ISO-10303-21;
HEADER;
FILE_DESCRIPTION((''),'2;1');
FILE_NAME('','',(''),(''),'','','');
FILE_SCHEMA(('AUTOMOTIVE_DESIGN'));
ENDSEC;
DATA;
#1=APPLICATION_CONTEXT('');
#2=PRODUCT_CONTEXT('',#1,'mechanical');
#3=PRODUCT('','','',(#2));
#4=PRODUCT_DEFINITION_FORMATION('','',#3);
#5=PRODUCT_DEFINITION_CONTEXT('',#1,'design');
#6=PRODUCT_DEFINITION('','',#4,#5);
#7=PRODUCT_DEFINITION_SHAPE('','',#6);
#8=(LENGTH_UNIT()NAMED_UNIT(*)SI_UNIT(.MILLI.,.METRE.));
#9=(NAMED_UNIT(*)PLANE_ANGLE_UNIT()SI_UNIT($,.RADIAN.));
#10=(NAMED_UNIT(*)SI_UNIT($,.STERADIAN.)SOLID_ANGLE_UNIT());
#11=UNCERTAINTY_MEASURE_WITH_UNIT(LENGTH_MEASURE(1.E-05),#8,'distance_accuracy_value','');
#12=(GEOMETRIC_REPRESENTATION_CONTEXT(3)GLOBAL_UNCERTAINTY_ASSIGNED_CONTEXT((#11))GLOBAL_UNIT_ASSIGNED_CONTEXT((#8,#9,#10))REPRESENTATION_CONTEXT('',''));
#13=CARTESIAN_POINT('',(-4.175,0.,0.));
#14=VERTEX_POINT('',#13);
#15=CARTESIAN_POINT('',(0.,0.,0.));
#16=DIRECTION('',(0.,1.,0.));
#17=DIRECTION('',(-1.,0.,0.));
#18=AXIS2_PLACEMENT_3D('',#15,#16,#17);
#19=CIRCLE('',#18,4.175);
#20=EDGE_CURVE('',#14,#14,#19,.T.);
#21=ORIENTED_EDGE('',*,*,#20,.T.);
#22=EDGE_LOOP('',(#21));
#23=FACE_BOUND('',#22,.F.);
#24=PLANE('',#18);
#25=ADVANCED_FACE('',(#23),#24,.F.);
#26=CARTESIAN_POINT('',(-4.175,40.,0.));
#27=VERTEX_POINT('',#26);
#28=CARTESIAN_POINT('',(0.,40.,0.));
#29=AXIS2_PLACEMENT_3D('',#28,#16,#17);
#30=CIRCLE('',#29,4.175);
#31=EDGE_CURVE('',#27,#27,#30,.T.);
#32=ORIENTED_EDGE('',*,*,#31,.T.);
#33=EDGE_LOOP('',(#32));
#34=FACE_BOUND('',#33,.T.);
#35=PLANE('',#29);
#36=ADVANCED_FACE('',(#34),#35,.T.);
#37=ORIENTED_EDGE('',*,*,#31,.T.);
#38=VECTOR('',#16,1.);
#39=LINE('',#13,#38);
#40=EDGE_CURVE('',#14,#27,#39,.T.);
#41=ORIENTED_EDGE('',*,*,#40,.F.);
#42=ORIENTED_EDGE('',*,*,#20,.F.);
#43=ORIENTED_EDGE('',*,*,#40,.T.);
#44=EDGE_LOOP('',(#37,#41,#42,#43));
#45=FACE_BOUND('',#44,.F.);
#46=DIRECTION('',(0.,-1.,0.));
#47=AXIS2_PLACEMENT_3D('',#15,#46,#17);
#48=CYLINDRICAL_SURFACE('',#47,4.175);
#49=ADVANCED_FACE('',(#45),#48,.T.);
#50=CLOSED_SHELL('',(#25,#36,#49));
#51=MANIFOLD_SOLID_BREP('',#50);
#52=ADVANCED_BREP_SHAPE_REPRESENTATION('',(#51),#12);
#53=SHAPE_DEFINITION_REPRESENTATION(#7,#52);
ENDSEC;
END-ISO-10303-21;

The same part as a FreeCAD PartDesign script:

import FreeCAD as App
import Part
import Sketcher
from FreeCAD import Vector

doc = App.newDocument("Part")
body = doc.addObject("PartDesign::Body", "Body")

sketch1 = body.newObject("Sketcher::SketchObject", "Sketch")
sketch1.AttachmentSupport = (doc.getObject("XZ_Plane"), [""])
sketch1.MapMode = "FlatFace"
sketch1.addGeometry(Part.Circle(Vector(0, 0, 0), Vector(0, 0, 1), 4.2), False)
sketch1.addConstraint([
    Sketcher.Constraint("Coincident", 0, 3, -1, 1),
    Sketcher.Constraint("Diameter", 0, 8.35),
])
pad1 = body.newObject("PartDesign::Pad", "Pad")
pad1.Profile = sketch1
pad1.Length = 40
pad1.Reversed = True

doc.recompute()
